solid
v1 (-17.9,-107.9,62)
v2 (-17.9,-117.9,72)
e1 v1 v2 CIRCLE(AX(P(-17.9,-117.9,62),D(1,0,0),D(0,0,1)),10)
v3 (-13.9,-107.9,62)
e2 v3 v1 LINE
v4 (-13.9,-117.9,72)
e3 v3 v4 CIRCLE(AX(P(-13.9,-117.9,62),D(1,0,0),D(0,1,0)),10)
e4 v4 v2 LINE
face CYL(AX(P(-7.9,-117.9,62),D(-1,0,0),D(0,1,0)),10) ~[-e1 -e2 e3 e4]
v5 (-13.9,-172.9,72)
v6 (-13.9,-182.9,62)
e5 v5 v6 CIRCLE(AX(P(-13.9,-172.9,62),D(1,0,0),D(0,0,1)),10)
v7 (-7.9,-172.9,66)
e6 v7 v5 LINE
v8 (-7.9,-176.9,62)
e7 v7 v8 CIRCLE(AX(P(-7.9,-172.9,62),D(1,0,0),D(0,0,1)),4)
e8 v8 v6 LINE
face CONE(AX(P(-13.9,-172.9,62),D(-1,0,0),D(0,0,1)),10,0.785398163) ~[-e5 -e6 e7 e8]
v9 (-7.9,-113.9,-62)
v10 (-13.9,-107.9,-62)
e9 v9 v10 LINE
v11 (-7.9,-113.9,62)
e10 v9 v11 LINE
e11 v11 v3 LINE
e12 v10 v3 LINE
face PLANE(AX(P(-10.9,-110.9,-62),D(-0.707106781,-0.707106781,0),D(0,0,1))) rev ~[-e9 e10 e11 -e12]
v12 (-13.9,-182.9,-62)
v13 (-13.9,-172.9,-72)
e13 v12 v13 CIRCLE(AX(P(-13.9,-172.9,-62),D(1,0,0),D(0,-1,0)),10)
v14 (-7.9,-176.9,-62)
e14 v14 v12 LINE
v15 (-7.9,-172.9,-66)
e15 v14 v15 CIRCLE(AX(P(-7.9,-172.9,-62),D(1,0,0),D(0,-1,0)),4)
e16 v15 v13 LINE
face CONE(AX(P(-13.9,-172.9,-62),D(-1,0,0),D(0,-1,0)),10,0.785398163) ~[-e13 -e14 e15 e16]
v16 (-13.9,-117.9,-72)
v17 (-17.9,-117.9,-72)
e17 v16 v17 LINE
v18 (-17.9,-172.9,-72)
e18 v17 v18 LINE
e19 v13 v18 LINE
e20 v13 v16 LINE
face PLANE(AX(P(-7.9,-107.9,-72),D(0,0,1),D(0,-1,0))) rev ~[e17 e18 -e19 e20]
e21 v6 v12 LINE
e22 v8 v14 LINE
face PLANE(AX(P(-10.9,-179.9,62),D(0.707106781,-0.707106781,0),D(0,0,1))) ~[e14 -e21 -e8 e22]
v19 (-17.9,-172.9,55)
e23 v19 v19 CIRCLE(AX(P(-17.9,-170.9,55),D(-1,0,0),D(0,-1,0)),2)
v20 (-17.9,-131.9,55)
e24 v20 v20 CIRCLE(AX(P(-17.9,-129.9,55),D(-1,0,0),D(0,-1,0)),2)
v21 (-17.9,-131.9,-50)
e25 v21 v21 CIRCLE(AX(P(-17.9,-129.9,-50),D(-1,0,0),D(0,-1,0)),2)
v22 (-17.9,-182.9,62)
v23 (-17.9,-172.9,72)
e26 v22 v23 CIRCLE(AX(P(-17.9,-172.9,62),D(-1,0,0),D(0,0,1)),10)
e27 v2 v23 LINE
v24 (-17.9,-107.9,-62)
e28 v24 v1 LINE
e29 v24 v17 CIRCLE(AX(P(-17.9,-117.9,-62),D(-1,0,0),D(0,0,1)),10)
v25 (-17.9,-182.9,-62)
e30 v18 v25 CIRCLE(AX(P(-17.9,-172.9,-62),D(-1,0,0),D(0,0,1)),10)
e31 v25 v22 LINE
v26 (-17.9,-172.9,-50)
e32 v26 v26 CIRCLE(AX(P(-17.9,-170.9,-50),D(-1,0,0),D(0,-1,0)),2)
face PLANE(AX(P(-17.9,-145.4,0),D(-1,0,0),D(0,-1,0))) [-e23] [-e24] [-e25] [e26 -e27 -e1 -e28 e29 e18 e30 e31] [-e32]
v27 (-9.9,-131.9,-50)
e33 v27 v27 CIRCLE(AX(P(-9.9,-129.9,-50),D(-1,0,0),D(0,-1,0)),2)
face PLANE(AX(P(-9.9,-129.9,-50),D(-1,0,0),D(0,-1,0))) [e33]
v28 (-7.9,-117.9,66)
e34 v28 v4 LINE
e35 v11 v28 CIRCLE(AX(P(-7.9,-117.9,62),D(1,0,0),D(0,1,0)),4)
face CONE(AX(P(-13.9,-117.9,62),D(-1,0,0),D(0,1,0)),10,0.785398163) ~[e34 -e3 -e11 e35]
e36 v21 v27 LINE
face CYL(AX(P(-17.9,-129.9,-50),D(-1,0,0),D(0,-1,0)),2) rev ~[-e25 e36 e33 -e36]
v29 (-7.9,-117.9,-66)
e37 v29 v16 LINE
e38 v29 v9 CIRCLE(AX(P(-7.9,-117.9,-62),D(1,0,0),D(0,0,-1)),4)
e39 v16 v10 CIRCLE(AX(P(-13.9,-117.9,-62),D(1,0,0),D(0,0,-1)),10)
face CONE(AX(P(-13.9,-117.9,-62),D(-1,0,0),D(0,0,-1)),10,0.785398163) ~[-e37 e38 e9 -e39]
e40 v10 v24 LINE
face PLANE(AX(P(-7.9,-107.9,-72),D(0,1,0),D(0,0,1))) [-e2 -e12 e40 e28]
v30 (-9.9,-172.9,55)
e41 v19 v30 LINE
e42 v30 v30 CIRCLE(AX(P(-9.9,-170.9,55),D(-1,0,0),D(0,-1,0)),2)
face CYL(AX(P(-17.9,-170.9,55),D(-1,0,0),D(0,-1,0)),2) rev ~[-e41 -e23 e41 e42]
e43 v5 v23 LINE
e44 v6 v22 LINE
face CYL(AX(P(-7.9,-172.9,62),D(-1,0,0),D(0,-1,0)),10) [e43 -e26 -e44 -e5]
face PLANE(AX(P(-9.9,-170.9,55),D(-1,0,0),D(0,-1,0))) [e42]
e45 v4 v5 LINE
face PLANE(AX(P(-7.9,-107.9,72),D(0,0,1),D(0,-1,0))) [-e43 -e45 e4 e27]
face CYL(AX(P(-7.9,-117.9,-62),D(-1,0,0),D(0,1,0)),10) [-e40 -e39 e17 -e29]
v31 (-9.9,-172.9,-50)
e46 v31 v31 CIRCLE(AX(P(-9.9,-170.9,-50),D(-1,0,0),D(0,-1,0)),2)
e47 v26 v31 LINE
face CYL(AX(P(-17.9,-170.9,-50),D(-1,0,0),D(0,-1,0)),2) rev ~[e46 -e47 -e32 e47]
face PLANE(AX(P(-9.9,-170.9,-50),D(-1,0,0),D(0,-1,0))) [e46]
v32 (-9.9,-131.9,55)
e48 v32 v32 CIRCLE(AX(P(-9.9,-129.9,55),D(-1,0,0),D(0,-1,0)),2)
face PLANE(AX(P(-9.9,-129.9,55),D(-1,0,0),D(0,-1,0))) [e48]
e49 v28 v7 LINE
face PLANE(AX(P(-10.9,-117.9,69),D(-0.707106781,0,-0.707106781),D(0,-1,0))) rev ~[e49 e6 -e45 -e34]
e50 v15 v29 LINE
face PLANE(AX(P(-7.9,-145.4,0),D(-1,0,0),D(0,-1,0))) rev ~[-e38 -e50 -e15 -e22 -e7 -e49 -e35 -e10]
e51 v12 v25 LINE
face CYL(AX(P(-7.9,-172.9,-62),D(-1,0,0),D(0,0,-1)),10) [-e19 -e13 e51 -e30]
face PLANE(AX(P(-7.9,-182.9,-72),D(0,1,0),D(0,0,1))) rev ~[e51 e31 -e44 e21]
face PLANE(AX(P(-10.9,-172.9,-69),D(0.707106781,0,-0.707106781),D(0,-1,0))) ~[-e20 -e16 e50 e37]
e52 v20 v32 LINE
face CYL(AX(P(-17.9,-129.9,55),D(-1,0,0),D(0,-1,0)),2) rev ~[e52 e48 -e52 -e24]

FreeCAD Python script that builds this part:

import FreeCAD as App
import Part
import Sketcher
Q = App.Units.Quantity


def edges_at(feature, points):
    """Names of the edges that pass closest to the given points."""
    edges = feature.Shape.Edges
    near = lambda p: min(range(len(edges)), key=lambda i: edges[i].distToShape(Part.Vertex(*p))[0])
    return sorted({f"Edge{near(p) + 1}" for p in points})

doc = App.newDocument("Part")
params = doc.addObject("Spreadsheet::Sheet", "Params")
for row, (alias, value) in enumerate([
    ("sketch1_width", "75 mm"),
    ("sketch1_height", "144 mm"),
    ("pad1_length", "10 mm"),
    ("fillet_radius", "10 mm"),
    ("chamfer_size", "6 mm"),
    ("sketch2_diameter", "4 mm"),
    ("pocket1_length", "8 mm"),
], start=1):
    params.set(f"A{row}", alias)
    params.set(f"B{row}", "=" + value)
    params.setAlias(f"B{row}", alias)

body = doc.addObject("PartDesign::Body", "Body")

sketch1 = body.newObject("Sketcher::SketchObject", "Sketch")
sketch1.AttachmentSupport = (doc.getObject("YZ_Plane"), [""])
sketch1.MapMode = "FlatFace"
sketch1.addGeometry([
    Part.LineSegment(App.Vector(-37, 72, 0), App.Vector(-37, -72, 0)),
    Part.LineSegment(App.Vector(-37, -72, 0), App.Vector(38, -72, 0)),
    Part.LineSegment(App.Vector(38, -72, 0), App.Vector(38, 72, 0)),
    Part.LineSegment(App.Vector(38, 72, 0), App.Vector(-37, 72, 0)),
], False)
sketch1.addConstraint([
    Sketcher.Constraint("Coincident", 0, 2, 1, 1),
    Sketcher.Constraint("Coincident", 1, 2, 2, 1),
    Sketcher.Constraint("Coincident", 2, 2, 3, 1),
    Sketcher.Constraint("Coincident", 3, 2, 0, 1),
    Sketcher.Constraint("Vertical", 0),
    Sketcher.Constraint("Horizontal", 1),
    Sketcher.Constraint("Vertical", 2),
    Sketcher.Constraint("Horizontal", 3),
    Sketcher.Constraint("DistanceX", 1, 1, 1, 2, Q("75 mm")),
    Sketcher.Constraint("DistanceY", 0, 2, 0, 1, Q("144 mm")),
    Sketcher.Constraint("DistanceX", 0, 2, -1, 1, Q("37 mm")),
    Sketcher.Constraint("DistanceY", 0, 2, -1, 1, Q("72 mm")),
])
sketch1.setExpression("Constraints[8]", "Params.sketch1_width")
sketch1.setExpression("Constraints[9]", "Params.sketch1_height")
pad1 = body.newObject("PartDesign::Pad", "Pad")
pad1.Profile = sketch1
pad1.setExpression("Length", "Params.pad1_length")
doc.recompute()

fillet = body.newObject("PartDesign::Fillet", "Fillet")
fillet.Base = (pad1, edges_at(pad1, [
    (5, 38, -72),
    (5, -37, -72),
    (5, -37, 72),
    (5, 38, 72),
]))
fillet.setExpression("Radius", "Params.fillet_radius")
doc.recompute()

chamfer = body.newObject("PartDesign::Chamfer", "Chamfer")
chamfer.Base = (fillet, edges_at(fillet, [
    (0, 0.5, 72),
    (0, -37, 0),
    (0, 38, 0),
    (0, 0.5, -72),
]))
chamfer.setExpression("Size", "Params.chamfer_size")

sketch2 = body.newObject("Sketcher::SketchObject", "Sketch001")
sketch2.AttachmentSupport = (doc.getObject("YZ_Plane"), [""])
sketch2.MapMode = "FlatFace"
sketch2.AttachmentOffset = App.Placement(App.Vector(0, 0, 10), App.Rotation())
sketch2.addGeometry([
    Part.Circle(App.Vector(-15, 55, 0), App.Vector(0, 0, 1), 2),
    Part.Circle(App.Vector(26, 55, 0), App.Vector(0, 0, 1), 2),
    Part.Circle(App.Vector(-15, -50, 0), App.Vector(0, 0, 1), 2),
    Part.Circle(App.Vector(26, -50, 0), App.Vector(0, 0, 1), 2),
], False)
sketch2.addConstraint([
    Sketcher.Constraint("Equal", 0, 1),
    Sketcher.Constraint("Equal", 1, 2),
    Sketcher.Constraint("Equal", 2, 3),
    Sketcher.Constraint("Horizontal", 0, 3, 1, 3),
    Sketcher.Constraint("Horizontal", 2, 3, 3, 3),
    Sketcher.Constraint("Vertical", 0, 3, 2, 3),
    Sketcher.Constraint("Vertical", 1, 3, 3, 3),
    Sketcher.Constraint("Diameter", 0, Q("4 mm")),
    Sketcher.Constraint("DistanceX", 0, 3, -1, 1, Q("15 mm")),
    Sketcher.Constraint("DistanceY", -1, 1, 0, 3, Q("55 mm")),
    Sketcher.Constraint("DistanceX", -1, 1, 1, 3, Q("26 mm")),
    Sketcher.Constraint("DistanceY", 2, 3, -1, 1, Q("50 mm")),
])
sketch2.setExpression("Constraints[7]", "Params.sketch2_diameter")
pocket1 = body.newObject("PartDesign::Pocket", "Pocket")
pocket1.Profile = sketch2
pocket1.setExpression("Length", "Params.pocket1_length")
body2 = doc.addObject("PartDesign::Body", "Body001")
doc.recompute()

body.Placement = App.Placement(App.Vector(-7.9, -144.9, 0), App.Rotation(App.Vector(0, 0, 1), 180))
boolean = body2.newObject("PartDesign::Boolean", "Boolean")
boolean.Type = "Fuse"
boolean.addObjects([body])

doc.recompute()
